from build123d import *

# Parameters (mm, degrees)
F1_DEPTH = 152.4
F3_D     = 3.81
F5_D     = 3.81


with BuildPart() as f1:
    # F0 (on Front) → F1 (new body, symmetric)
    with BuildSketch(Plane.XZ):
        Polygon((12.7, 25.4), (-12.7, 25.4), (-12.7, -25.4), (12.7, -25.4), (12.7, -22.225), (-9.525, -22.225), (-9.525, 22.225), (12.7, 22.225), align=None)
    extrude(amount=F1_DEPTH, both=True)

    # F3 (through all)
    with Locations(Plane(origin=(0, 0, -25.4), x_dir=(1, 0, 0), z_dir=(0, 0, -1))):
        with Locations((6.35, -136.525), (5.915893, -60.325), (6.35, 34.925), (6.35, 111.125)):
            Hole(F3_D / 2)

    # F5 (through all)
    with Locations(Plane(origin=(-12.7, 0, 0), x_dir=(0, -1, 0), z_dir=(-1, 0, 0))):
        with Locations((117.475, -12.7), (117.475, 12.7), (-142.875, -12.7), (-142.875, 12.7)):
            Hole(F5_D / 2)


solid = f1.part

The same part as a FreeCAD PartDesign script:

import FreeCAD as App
import Part
import Sketcher
Q = App.Units.Quantity


def add_polygon(sketch, points):
    """Adds a closed chain of lines whose ends are joined by coincident constraints."""
    first, n = sketch.GeometryCount, len(points)
    for a, b in zip(points, points[1:] + points[:1]):
        sketch.addGeometry(Part.LineSegment(App.Vector(*a, 0), App.Vector(*b, 0)), False)
    for i in range(n):
        sketch.addConstraint(Sketcher.Constraint("Coincident", first + i, 2, first + (i + 1) % n, 1))

doc = App.newDocument("Part")
body = doc.addObject("PartDesign::Body", "Body")

sketch1 = body.newObject("Sketcher::SketchObject", "Sketch")
sketch1.AttachmentSupport = (doc.getObject("XZ_Plane"), [""])
sketch1.MapMode = "FlatFace"
add_polygon(sketch1, [(12.7, 25.4), (-12.7, 25.4), (-12.7, -25.4), (12.7, -25.4), (12.7, -22.2), (-9.5, -22.2), (-9.5, 22.2), (12.7, 22.2)])
sketch1.addConstraint([
    Sketcher.Constraint("Horizontal", 0),
    Sketcher.Constraint("Vertical", 1),
    Sketcher.Constraint("Horizontal", 2),
    Sketcher.Constraint("Vertical", 3),
    Sketcher.Constraint("Horizontal", 4),
    Sketcher.Constraint("Vertical", 5),
    Sketcher.Constraint("Horizontal", 6),
    Sketcher.Constraint("Vertical", 7),
    Sketcher.Constraint("Symmetric", 0, 2, 2, 2, -1, 1),
    Sketcher.Constraint("Symmetric", 3, 2, 6, 2, -1),
    Sketcher.Constraint("DistanceX", 0, 2, 0, 1, Q("1 in")),
    Sketcher.Constraint("DistanceY", 1, 2, 1, 1, Q("2 in")),
    Sketcher.Constraint("DistanceY", 5, 1, 5, 2, Q("1.75 in")),
    Sketcher.Constraint("DistanceX", 4, 2, 4, 1, Q("0.875 in")),
])
pad1 = body.newObject("PartDesign::Pad", "Pad")
pad1.Profile = sketch1
pad1.Length = Q("12 in")
pad1.Midplane = True

sketch2 = body.newObject("Sketcher::SketchObject", "Sketch001")
sketch2.AttachmentSupport = (doc.getObject("XY_Plane"), [""])
sketch2.MapMode = "FlatFace"
sketch2.AttachmentOffset = App.Placement(App.Vector(0, 0, -1 * 25.4), App.Rotation())
sketch2.addGeometry([
    Part.Circle(App.Vector(6.3, 136.5, 0), App.Vector(0, 0, 1), 1.9),
    Part.Circle(App.Vector(5.9, 60.3, 0), App.Vector(0, 0, 1), 1.9),
    Part.Circle(App.Vector(6.3, -34.9, 0), App.Vector(0, 0, 1), 1.9),
    Part.Circle(App.Vector(6.3, -111.1, 0), App.Vector(0, 0, 1), 1.9),
], False)
sketch2.addConstraint([
    Sketcher.Constraint("Equal", 0, 1),
    Sketcher.Constraint("Equal", 1, 2),
    Sketcher.Constraint("Equal", 2, 3),
    Sketcher.Constraint("Vertical", 0, 3, 2, 3),
    Sketcher.Constraint("Vertical", 2, 3, 3, 3),
    Sketcher.Constraint("Diameter", 0, Q("0.15 in")),
    Sketcher.Constraint("DistanceY", 1, 3, 0, 3, Q("3 in")),
    Sketcher.Constraint("DistanceY", 3, 3, 2, 3, Q("3 in")),
    Sketcher.Constraint("DistanceX", -1, 1, 0, 3, Q("0.25 in")),
    Sketcher.Constraint("DistanceY", 2, 3, 1, 3, Q("3.75 in")),
    Sketcher.Constraint("DistanceY", -1, 1, 0, 3, Q("5.375 in")),
    Sketcher.Constraint("DistanceX", -1, 1, 1, 3, Q("5.915893 mm")),
])
doc.recompute()
hole = body.newObject("PartDesign::Hole", "Hole")
hole.Profile = sketch2
hole.ThreadType = "None"
hole.Diameter = Q("0.15 in")
hole.DepthType = "ThroughAll"
hole.Reversed = True

sketch3 = body.newObject("Sketcher::SketchObject", "Sketch002")
sketch3.AttachmentSupport = (doc.getObject("YZ_Plane"), [""])
sketch3.MapMode = "FlatFace"
sketch3.AttachmentOffset = App.Placement(App.Vector(0, 0, -0.5 * 25.4), App.Rotation())
sketch3.addGeometry([
    Part.Circle(App.Vector(-117.5, -12.7, 0), App.Vector(0, 0, 1), 1.9),
    Part.Circle(App.Vector(-117.5, 12.7, 0), App.Vector(0, 0, 1), 1.9),
    Part.Circle(App.Vector(142.9, -12.7, 0), App.Vector(0, 0, 1), 1.9),
    Part.Circle(App.Vector(142.9, 12.7, 0), App.Vector(0, 0, 1), 1.9),
], False)
sketch3.addConstraint([
    Sketcher.Constraint("Equal", 0, 1),
    Sketcher.Constraint("Equal", 1, 2),
    Sketcher.Constraint("Equal", 2, 3),
    Sketcher.Constraint("Symmetric", 0, 3, 1, 3, -1),
    Sketcher.Constraint("Symmetric", 2, 3, 3, 3, -1),
    Sketcher.Constraint("Horizontal", 0, 3, 2, 3),
    Sketcher.Constraint("Diameter", 0, Q("0.15 in")),
    Sketcher.Constraint("DistanceY", 0, 3, 1, 3, Q("1 in")),
    Sketcher.Constraint("DistanceX", 0, 3, 2, 3, Q("10.25 in")),
    Sketcher.Constraint("DistanceX", 0, 3, -1, 1, Q("4.625 in")),
])
doc.recompute()
hole2 = body.newObject("PartDesign::Hole", "Hole001")
hole2.Profile = sketch3
hole2.ThreadType = "None"
hole2.Diameter = Q("0.15 in")
hole2.DepthType = "ThroughAll"
hole2.Reversed = True

doc.recompute()
